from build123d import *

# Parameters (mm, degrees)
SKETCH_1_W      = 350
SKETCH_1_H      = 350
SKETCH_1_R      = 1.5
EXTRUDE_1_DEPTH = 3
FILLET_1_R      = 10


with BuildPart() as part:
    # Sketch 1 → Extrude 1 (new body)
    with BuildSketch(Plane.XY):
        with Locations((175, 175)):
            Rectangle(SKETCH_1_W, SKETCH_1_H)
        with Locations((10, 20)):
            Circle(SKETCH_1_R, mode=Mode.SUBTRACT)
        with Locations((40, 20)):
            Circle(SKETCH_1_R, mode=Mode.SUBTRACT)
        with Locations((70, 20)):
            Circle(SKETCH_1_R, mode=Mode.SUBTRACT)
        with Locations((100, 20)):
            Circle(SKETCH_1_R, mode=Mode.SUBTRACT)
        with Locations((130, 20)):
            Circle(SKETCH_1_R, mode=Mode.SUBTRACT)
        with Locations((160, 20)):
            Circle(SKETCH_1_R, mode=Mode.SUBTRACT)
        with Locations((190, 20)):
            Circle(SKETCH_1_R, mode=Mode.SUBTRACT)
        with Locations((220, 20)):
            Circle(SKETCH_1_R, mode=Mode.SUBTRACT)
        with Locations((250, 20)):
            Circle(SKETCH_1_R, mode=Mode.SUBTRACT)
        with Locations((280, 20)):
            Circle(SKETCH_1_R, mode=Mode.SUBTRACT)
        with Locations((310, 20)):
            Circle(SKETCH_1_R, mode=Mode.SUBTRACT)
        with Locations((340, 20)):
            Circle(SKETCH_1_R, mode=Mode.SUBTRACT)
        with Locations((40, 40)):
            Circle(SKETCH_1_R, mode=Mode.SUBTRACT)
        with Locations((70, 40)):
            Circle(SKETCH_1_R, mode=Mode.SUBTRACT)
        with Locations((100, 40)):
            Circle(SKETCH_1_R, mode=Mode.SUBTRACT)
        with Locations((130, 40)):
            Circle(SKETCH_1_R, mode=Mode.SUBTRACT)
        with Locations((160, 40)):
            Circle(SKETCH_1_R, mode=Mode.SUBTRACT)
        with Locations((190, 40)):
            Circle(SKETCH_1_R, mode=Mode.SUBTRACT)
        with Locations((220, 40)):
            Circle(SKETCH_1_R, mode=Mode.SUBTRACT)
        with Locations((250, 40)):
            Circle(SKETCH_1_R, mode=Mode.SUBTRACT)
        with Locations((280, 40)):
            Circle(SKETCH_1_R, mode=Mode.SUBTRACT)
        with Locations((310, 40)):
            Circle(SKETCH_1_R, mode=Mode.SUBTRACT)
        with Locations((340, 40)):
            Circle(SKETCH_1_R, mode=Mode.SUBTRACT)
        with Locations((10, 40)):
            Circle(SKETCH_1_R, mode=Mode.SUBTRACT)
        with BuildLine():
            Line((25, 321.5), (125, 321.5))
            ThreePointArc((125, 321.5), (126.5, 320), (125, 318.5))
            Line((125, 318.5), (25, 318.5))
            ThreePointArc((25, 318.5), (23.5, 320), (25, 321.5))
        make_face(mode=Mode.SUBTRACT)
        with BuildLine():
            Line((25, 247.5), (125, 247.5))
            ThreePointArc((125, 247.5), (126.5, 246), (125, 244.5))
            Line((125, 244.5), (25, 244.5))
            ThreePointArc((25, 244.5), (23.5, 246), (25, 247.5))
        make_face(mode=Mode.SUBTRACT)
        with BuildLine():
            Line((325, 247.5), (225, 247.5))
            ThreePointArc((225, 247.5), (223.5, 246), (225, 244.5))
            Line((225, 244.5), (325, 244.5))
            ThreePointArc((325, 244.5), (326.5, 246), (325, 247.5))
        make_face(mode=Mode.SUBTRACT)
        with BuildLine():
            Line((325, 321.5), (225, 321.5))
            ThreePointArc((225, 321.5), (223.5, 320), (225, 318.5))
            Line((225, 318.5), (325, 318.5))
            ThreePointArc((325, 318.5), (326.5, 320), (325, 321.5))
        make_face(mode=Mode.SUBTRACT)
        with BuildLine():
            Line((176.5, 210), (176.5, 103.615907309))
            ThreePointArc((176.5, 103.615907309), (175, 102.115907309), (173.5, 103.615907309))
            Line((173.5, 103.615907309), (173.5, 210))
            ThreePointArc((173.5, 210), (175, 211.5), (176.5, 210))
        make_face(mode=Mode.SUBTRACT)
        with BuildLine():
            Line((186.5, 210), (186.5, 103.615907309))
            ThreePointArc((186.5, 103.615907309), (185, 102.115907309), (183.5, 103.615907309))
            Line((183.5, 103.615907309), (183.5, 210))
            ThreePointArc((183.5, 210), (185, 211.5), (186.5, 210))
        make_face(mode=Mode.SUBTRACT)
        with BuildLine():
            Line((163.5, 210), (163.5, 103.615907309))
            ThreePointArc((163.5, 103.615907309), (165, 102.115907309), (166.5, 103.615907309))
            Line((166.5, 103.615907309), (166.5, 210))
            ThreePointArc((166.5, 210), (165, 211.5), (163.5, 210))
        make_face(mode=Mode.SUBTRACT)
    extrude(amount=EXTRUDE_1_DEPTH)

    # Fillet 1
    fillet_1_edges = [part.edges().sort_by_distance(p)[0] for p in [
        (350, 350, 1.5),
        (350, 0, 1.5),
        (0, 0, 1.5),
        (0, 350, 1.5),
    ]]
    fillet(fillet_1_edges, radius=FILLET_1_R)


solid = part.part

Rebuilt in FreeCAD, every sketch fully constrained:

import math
import FreeCAD as App
import Part
import Sketcher

V = App.Vector
Q = App.Units.Quantity


def edges_at(feature, points):
    """Names of the edges that pass closest to the given points."""
    edges = feature.Shape.Edges
    near = lambda p: min(range(len(edges)), key=lambda i: edges[i].distToShape(Part.Vertex(*p))[0])
    return sorted({f"Edge{near(p) + 1}" for p in points})


def add_polygon(sketch, points):
    """Adds a closed chain of lines whose ends are joined by coincident constraints."""
    first, n = sketch.GeometryCount, len(points)
    for a, b in zip(points, points[1:] + points[:1]):
        sketch.addGeometry(Part.LineSegment(App.Vector(*a, 0), App.Vector(*b, 0)), False)
    for i in range(n):
        sketch.addConstraint(Sketcher.Constraint("Coincident", first + i, 2, first + (i + 1) % n, 1))

doc = App.newDocument("Part")
body = doc.addObject("PartDesign::Body", "Body")

# Sketch on XY plane
sketch1 = body.newObject("Sketcher::SketchObject", "Sketch")
sketch1.AttachmentSupport = (doc.getObject("XY_Plane"), [""])
sketch1.MapMode = "FlatFace"
add_polygon(sketch1, [(0, 350), (0, 0), (350, 0), (350, 350)])  # lines 0-3
sketch1.addGeometry(Part.Circle(V(10, 20, 0), V(0, 0, 1), 1.5), False)  # 4
sketch1.addGeometry(Part.Circle(V(40, 20, 0), V(0, 0, 1), 1.5), False)  # 5
sketch1.addGeometry(Part.Circle(V(10, 40, 0), V(0, 0, 1), 1.5), False)  # 6
sketch1.addGeometry(Part.Circle(V(40, 40, 0), V(0, 0, 1), 1.5), False)  # 7
sketch1.addGeometry(Part.Circle(V(70, 20, 0), V(0, 0, 1), 1.5), False)  # 8
sketch1.addGeometry(Part.Circle(V(70, 40, 0), V(0, 0, 1), 1.5), False)  # 9
sketch1.addGeometry(Part.Circle(V(100, 20, 0), V(0, 0, 1), 1.5), False)  # 10
sketch1.addGeometry(Part.Circle(V(130, 20, 0), V(0, 0, 1), 1.5), False)  # 11
sketch1.addGeometry(Part.Circle(V(100, 40, 0), V(0, 0, 1), 1.5), False)  # 12
sketch1.addGeometry(Part.Circle(V(130, 40, 0), V(0, 0, 1), 1.5), False)  # 13
sketch1.addGeometry(Part.Circle(V(160, 20, 0), V(0, 0, 1), 1.5), False)  # 14
sketch1.addGeometry(Part.Circle(V(160, 40, 0), V(0, 0, 1), 1.5), False)  # 15
sketch1.addGeometry(Part.LineSegment(V(163.5, 103.6, 0), V(163.5, 210, 0)), False)  # 16
sketch1.addGeometry(Part.ArcOfCircle(Part.Circle(V(165, 210, 0), V(0, 0, 1), 1.5), math.radians(0), math.radians(180)), False)  # 17
sketch1.addGeometry(Part.LineSegment(V(166.5, 210, 0), V(166.5, 103.6, 0)), False)  # 18
sketch1.addGeometry(Part.ArcOfCircle(Part.Circle(V(165, 103.6, 0), V(0, 0, 1), 1.5), math.radians(180), math.radians(360)), False)  # 19
sketch1.addGeometry(Part.Circle(V(190, 20, 0), V(0, 0, 1), 1.5), False)  # 20
sketch1.addGeometry(Part.Circle(V(190, 40, 0), V(0, 0, 1), 1.5), False)  # 21
sketch1.addGeometry(Part.Circle(V(220, 20, 0), V(0, 0, 1), 1.5), False)  # 22
sketch1.addGeometry(Part.Circle(V(250, 20, 0), V(0, 0, 1), 1.5), False)  # 23
sketch1.addGeometry(Part.Circle(V(220, 40, 0), V(0, 0, 1), 1.5), False)  # 24
sketch1.addGeometry(Part.Circle(V(250, 40, 0), V(0, 0, 1), 1.5), False)  # 25
sketch1.addGeometry(Part.Circle(V(280, 20, 0), V(0, 0, 1), 1.5), False)  # 26
sketch1.addGeometry(Part.Circle(V(280, 40, 0), V(0, 0, 1), 1.5), False)  # 27
sketch1.addGeometry(Part.Circle(V(310, 20, 0), V(0, 0, 1), 1.5), False)  # 28
sketch1.addGeometry(Part.Circle(V(340, 20, 0), V(0, 0, 1), 1.5), False)  # 29
sketch1.addGeometry(Part.Circle(V(310, 40, 0), V(0, 0, 1), 1.5), False)  # 30
sketch1.addGeometry(Part.Circle(V(340, 40, 0), V(0, 0, 1), 1.5), False)  # 31
sketch1.addGeometry(Part.ArcOfCircle(Part.Circle(V(175, 210, 0), V(0, 0, 1), 1.5), math.radians(0), math.radians(180)), False)  # 32
sketch1.addGeometry(Part.LineSegment(V(176.5, 210, 0), V(176.5, 103.6, 0)), False)  # 33
sketch1.addGeometry(Part.ArcOfCircle(Part.Circle(V(175, 103.6, 0), V(0, 0, 1), 1.5), math.radians(180), math.radians(360)), False)  # 34
sketch1.addGeometry(Part.LineSegment(V(173.5, 103.6, 0), V(173.5, 210, 0)), False)  # 35
sketch1.addGeometry(Part.ArcOfCircle(Part.Circle(V(185, 210, 0), V(0, 0, 1), 1.5), math.radians(0), math.radians(180)), False)  # 36
sketch1.addGeometry(Part.LineSegment(V(186.5, 210, 0), V(186.5, 103.6, 0)), False)  # 37
sketch1.addGeometry(Part.ArcOfCircle(Part.Circle(V(185, 103.6, 0), V(0, 0, 1), 1.5), math.radians(180), math.radians(360)), False)  # 38
sketch1.addGeometry(Part.LineSegment(V(183.5, 103.6, 0), V(183.5, 210, 0)), False)  # 39
sketch1.addGeometry(Part.ArcOfCircle(Part.Circle(V(25, 246, 0), V(0, 0, 1), 1.5), math.radians(90), math.radians(270)), False)  # 40
sketch1.addGeometry(Part.LineSegment(V(25, 247.5, 0), V(125, 247.5, 0)), False)  # 41
sketch1.addGeometry(Part.ArcOfCircle(Part.Circle(V(125, 246, 0), V(0, 0, 1), 1.5), math.radians(-90), math.radians(90)), False)  # 42
sketch1.addGeometry(Part.LineSegment(V(125, 244.5, 0), V(25, 244.5, 0)), False)  # 43
sketch1.addGeometry(Part.ArcOfCircle(Part.Circle(V(25, 320, 0), V(0, 0, 1), 1.5), math.radians(90), math.radians(270)), False)  # 44
sketch1.addGeometry(Part.LineSegment(V(25, 321.5, 0), V(125, 321.5, 0)), False)  # 45
sketch1.addGeometry(Part.ArcOfCircle(Part.Circle(V(125, 320, 0), V(0, 0, 1), 1.5), math.radians(-90), math.radians(90)), False)  # 46
sketch1.addGeometry(Part.LineSegment(V(125, 318.5, 0), V(25, 318.5, 0)), False)  # 47
sketch1.addGeometry(Part.LineSegment(V(225, 247.5, 0), V(325, 247.5, 0)), False)  # 48
sketch1.addGeometry(Part.ArcOfCircle(Part.Circle(V(325, 246, 0), V(0, 0, 1), 1.5), math.radians(-90), math.radians(90)), False)  # 49
sketch1.addGeometry(Part.LineSegment(V(325, 244.5, 0), V(225, 244.5, 0)), False)  # 50
sketch1.addGeometry(Part.ArcOfCircle(Part.Circle(V(225, 246, 0), V(0, 0, 1), 1.5), math.radians(90), math.radians(270)), False)  # 51
sketch1.addGeometry(Part.LineSegment(V(225, 321.5, 0), V(325, 321.5, 0)), False)  # 52
sketch1.addGeometry(Part.ArcOfCircle(Part.Circle(V(325, 320, 0), V(0, 0, 1), 1.5), math.radians(-90), math.radians(90)), False)  # 53
sketch1.addGeometry(Part.LineSegment(V(325, 318.5, 0), V(225, 318.5, 0)), False)  # 54
sketch1.addGeometry(Part.ArcOfCircle(Part.Circle(V(225, 320, 0), V(0, 0, 1), 1.5), math.radians(90), math.radians(270)), False)  # 55
sketch1.addConstraint([
    Sketcher.Constraint("Tangent", 16, 2, 17, 2),
    Sketcher.Constraint("Tangent", 17, 1, 18, 1),
    Sketcher.Constraint("Tangent", 18, 2, 19, 2),
    Sketcher.Constraint("Tangent", 19, 1, 16, 1),
    Sketcher.Constraint("Tangent", 32, 1, 33, 1),
    Sketcher.Constraint("Tangent", 33, 2, 34, 2),
    Sketcher.Constraint("Tangent", 34, 1, 35, 1),
    Sketcher.Constraint("Tangent", 35, 2, 32, 2),
    Sketcher.Constraint("Tangent", 36, 1, 37, 1),
    Sketcher.Constraint("Tangent", 37, 2, 38, 2),
    Sketcher.Constraint("Tangent", 38, 1, 39, 1),
    Sketcher.Constraint("Tangent", 39, 2, 36, 2),
    Sketcher.Constraint("Tangent", 40, 1, 41, 1),
    Sketcher.Constraint("Tangent", 41, 2, 42, 2),
    Sketcher.Constraint("Tangent", 42, 1, 43, 1),
    Sketcher.Constraint("Tangent", 43, 2, 40, 2),
    Sketcher.Constraint("Tangent", 44, 1, 45, 1),
    Sketcher.Constraint("Tangent", 45, 2, 46, 2),
    Sketcher.Constraint("Tangent", 46, 1, 47, 1),
    Sketcher.Constraint("Tangent", 47, 2, 44, 2),
    Sketcher.Constraint("Tangent", 48, 2, 49, 2),
    Sketcher.Constraint("Tangent", 49, 1, 50, 1),
    Sketcher.Constraint("Tangent", 50, 2, 51, 2),
    Sketcher.Constraint("Tangent", 51, 1, 48, 1),
    Sketcher.Constraint("Tangent", 52, 2, 53, 2),
    Sketcher.Constraint("Tangent", 53, 1, 54, 1),
    Sketcher.Constraint("Tangent", 54, 2, 55, 2),
    Sketcher.Constraint("Tangent", 55, 1, 52, 1),
    Sketcher.Constraint("Vertical", 0),
    Sketcher.Constraint("Horizontal", 1),
    Sketcher.Constraint("Vertical", 2),
    Sketcher.Constraint("Horizontal", 3),
    Sketcher.Constraint("Vertical", 16),
    Sketcher.Constraint("Vertical", 18),
    Sketcher.Constraint("Vertical", 33),
    Sketcher.Constraint("Vertical", 35),
    Sketcher.Constraint("Vertical", 37),
    Sketcher.Constraint("Vertical", 39),
    Sketcher.Constraint("Horizontal", 41),
    Sketcher.Constraint("Horizontal", 43),
    Sketcher.Constraint("Horizontal", 45),
    Sketcher.Constraint("Horizontal", 47),
    Sketcher.Constraint("Horizontal", 48),
    Sketcher.Constraint("Horizontal", 50),
    Sketcher.Constraint("Horizontal", 52),
    Sketcher.Constraint("Horizontal", 54),
    Sketcher.Constraint("Coincident", 0, 2, -1, 1),
    Sketcher.Constraint("Equal", 4, 5),
    Sketcher.Constraint("Equal", 5, 6),
    Sketcher.Constraint("Equal", 6, 7),
    Sketcher.Constraint("Equal", 7, 8),
    Sketcher.Constraint("Equal", 8, 9),
    Sketcher.Constraint("Equal", 9, 10),
    Sketcher.Constraint("Equal", 10, 11),
    Sketcher.Constraint("Equal", 11, 12),
    Sketcher.Constraint("Equal", 12, 13),
    Sketcher.Constraint("Equal", 13, 14),
    Sketcher.Constraint("Equal", 14, 15),
    Sketcher.Constraint("Equal", 15, 17),
    Sketcher.Constraint("Equal", 19, 20),
    Sketcher.Constraint("Equal", 20, 21),
    Sketcher.Constraint("Equal", 21, 22),
    Sketcher.Constraint("Equal", 22, 23),
    Sketcher.Constraint("Equal", 23, 24),
    Sketcher.Constraint("Equal", 24, 25),
    Sketcher.Constraint("Equal", 25, 26),
    Sketcher.Constraint("Equal", 26, 27),
    Sketcher.Constraint("Equal", 27, 28),
    Sketcher.Constraint("Equal", 28, 29),
    Sketcher.Constraint("Equal", 29, 30),
    Sketcher.Constraint("Equal", 30, 31),
    Sketcher.Constraint("Equal", 31, 32),
    Sketcher.Constraint("Equal", 34, 36),
    Sketcher.Constraint("Equal", 38, 40),
    Sketcher.Constraint("Equal", 42, 44),
    Sketcher.Constraint("Equal", 46, 49),
    Sketcher.Constraint("Equal", 51, 53),
    Sketcher.Constraint("Horizontal", 4, 3, 5, 3),
    Sketcher.Constraint("Horizontal", 6, 3, 7, 3),
    Sketcher.Constraint("Horizontal", 5, 3, 8, 3),
    Sketcher.Constraint("Horizontal", 7, 3, 9, 3),
    Sketcher.Constraint("Horizontal", 8, 3, 10, 3),
    Sketcher.Constraint("Horizontal", 10, 3, 11, 3),
    Sketcher.Constraint("Horizontal", 9, 3, 12, 3),
    Sketcher.Constraint("Horizontal", 12, 3, 13, 3),
    Sketcher.Constraint("Horizontal", 11, 3, 14, 3),
    Sketcher.Constraint("Horizontal", 13, 3, 15, 3),
    Sketcher.Constraint("Horizontal", 14, 3, 20, 3),
    Sketcher.Constraint("Horizontal", 15, 3, 21, 3),
    Sketcher.Constraint("Horizontal", 20, 3, 22, 3),
    Sketcher.Constraint("Horizontal", 22, 3, 23, 3),
    Sketcher.Constraint("Horizontal", 21, 3, 24, 3),
    Sketcher.Constraint("Horizontal", 24, 3, 25, 3),
    Sketcher.Constraint("Horizontal", 23, 3, 26, 3),
    Sketcher.Constraint("Horizontal", 25, 3, 27, 3),
    Sketcher.Constraint("Horizontal", 26, 3, 28, 3),
    Sketcher.Constraint("Horizontal", 28, 3, 29, 3),
    Sketcher.Constraint("Horizontal", 27, 3, 30, 3),
    Sketcher.Constraint("Horizontal", 30, 3, 31, 3),
    Sketcher.Constraint("Horizontal", 17, 3, 32, 3),
    Sketcher.Constraint("Horizontal", 19, 3, 34, 3),
    Sketcher.Constraint("Horizontal", 32, 3, 36, 3),
    Sketcher.Constraint("Horizontal", 34, 3, 38, 3),
    Sketcher.Constraint("Horizontal", 42, 3, 49, 3),
    Sketcher.Constraint("Horizontal", 46, 3, 53, 3),
    Sketcher.Constraint("Vertical", 4, 3, 6, 3),
    Sketcher.Constraint("Vertical", 5, 3, 7, 3),
    Sketcher.Constraint("Vertical", 8, 3, 9, 3),
    Sketcher.Constraint("Vertical", 10, 3, 12, 3),
    Sketcher.Constraint("Vertical", 11, 3, 13, 3),
    Sketcher.Constraint("Vertical", 14, 3, 15, 3),
    Sketcher.Constraint("Vertical", 20, 3, 21, 3),
    Sketcher.Constraint("Vertical", 22, 3, 24, 3),
    Sketcher.Constraint("Vertical", 23, 3, 25, 3),
    Sketcher.Constraint("Vertical", 26, 3, 27, 3),
    Sketcher.Constraint("Vertical", 28, 3, 30, 3),
    Sketcher.Constraint("Vertical", 29, 3, 31, 3),
    Sketcher.Constraint("Vertical", 40, 3, 44, 3),
    Sketcher.Constraint("Vertical", 42, 3, 46, 3),
    Sketcher.Constraint("Vertical", 49, 3, 53, 3),
    Sketcher.Constraint("Vertical", 51, 3, 55, 3),
    Sketcher.Constraint("Equal", 47, 48),
    Sketcher.Constraint("Equal", 3, 0),
    Sketcher.Constraint("Diameter", 4, Q("3 mm")),
    Sketcher.Constraint("DistanceX", 1, 1, 1, 2, Q("350 mm")),
    Sketcher.Constraint("DistanceX", 41, 1, 41, 2, Q("100 mm")),
    Sketcher.Constraint("DistanceX", -1, 1, 4, 3, Q("10 mm")),
    Sketcher.Constraint("DistanceY", -1, 1, 4, 3, Q("20 mm")),
    Sketcher.Constraint("DistanceX", -1, 1, 5, 3, Q("40 mm")),
    Sketcher.Constraint("DistanceY", -1, 1, 6, 3, Q("40 mm")),
    Sketcher.Constraint("DistanceX", -1, 1, 8, 3, Q("70 mm")),
    Sketcher.Constraint("DistanceX", -1, 1, 10, 3, Q("100 mm")),
    Sketcher.Constraint("DistanceX", -1, 1, 11, 3, Q("130 mm")),
    Sketcher.Constraint("DistanceX", -1, 1, 14, 3, Q("160 mm")),
    Sketcher.Constraint("DistanceX", -1, 1, 17, 3, Q("165 mm")),
    Sketcher.Constraint("DistanceY", -1, 1, 17, 3, Q("210 mm")),
    Sketcher.Constraint("DistanceX", -1, 1, 20, 3, Q("190 mm")),
    Sketcher.Constraint("DistanceX", -1, 1, 22, 3, Q("220 mm")),
    Sketcher.Constraint("DistanceX", -1, 1, 23, 3, Q("250 mm")),
    Sketcher.Constraint("DistanceX", -1, 1, 26, 3, Q("280 mm")),
    Sketcher.Constraint("DistanceX", -1, 1, 28, 3, Q("310 mm")),
    Sketcher.Constraint("DistanceX", -1, 1, 29, 3, Q("340 mm")),
    Sketcher.Constraint("DistanceX", -1, 1, 32, 3, Q("175 mm")),
    Sketcher.Constraint("DistanceX", -1, 1, 36, 3, Q("185 mm")),
    Sketcher.Constraint("DistanceX", -1, 1, 40, 3, Q("25 mm")),
    Sketcher.Constraint("DistanceY", -1, 1, 40, 3, Q("246 mm")),
    Sketcher.Constraint("DistanceY", -1, 1, 44, 3, Q("320 mm")),
    Sketcher.Constraint("DistanceX", -1, 1, 49, 3, Q("325 mm")),
    Sketcher.Constraint("DistanceY", 16, 1, 16, 2, Q("106.384093 mm")),
])
pad1 = body.newObject("PartDesign::Pad", "Pad")
pad1.Profile = sketch1
pad1.Length = 3
doc.recompute()

fillet = body.newObject("PartDesign::Fillet", "Fillet")
fillet.Base = (pad1, edges_at(pad1, [
    (350, 350, 1.5),
    (350, 0, 1.5),
    (0, 0, 1.5),
    (0, 350, 1.5),
]))
fillet.Radius = 10

doc.recompute()
